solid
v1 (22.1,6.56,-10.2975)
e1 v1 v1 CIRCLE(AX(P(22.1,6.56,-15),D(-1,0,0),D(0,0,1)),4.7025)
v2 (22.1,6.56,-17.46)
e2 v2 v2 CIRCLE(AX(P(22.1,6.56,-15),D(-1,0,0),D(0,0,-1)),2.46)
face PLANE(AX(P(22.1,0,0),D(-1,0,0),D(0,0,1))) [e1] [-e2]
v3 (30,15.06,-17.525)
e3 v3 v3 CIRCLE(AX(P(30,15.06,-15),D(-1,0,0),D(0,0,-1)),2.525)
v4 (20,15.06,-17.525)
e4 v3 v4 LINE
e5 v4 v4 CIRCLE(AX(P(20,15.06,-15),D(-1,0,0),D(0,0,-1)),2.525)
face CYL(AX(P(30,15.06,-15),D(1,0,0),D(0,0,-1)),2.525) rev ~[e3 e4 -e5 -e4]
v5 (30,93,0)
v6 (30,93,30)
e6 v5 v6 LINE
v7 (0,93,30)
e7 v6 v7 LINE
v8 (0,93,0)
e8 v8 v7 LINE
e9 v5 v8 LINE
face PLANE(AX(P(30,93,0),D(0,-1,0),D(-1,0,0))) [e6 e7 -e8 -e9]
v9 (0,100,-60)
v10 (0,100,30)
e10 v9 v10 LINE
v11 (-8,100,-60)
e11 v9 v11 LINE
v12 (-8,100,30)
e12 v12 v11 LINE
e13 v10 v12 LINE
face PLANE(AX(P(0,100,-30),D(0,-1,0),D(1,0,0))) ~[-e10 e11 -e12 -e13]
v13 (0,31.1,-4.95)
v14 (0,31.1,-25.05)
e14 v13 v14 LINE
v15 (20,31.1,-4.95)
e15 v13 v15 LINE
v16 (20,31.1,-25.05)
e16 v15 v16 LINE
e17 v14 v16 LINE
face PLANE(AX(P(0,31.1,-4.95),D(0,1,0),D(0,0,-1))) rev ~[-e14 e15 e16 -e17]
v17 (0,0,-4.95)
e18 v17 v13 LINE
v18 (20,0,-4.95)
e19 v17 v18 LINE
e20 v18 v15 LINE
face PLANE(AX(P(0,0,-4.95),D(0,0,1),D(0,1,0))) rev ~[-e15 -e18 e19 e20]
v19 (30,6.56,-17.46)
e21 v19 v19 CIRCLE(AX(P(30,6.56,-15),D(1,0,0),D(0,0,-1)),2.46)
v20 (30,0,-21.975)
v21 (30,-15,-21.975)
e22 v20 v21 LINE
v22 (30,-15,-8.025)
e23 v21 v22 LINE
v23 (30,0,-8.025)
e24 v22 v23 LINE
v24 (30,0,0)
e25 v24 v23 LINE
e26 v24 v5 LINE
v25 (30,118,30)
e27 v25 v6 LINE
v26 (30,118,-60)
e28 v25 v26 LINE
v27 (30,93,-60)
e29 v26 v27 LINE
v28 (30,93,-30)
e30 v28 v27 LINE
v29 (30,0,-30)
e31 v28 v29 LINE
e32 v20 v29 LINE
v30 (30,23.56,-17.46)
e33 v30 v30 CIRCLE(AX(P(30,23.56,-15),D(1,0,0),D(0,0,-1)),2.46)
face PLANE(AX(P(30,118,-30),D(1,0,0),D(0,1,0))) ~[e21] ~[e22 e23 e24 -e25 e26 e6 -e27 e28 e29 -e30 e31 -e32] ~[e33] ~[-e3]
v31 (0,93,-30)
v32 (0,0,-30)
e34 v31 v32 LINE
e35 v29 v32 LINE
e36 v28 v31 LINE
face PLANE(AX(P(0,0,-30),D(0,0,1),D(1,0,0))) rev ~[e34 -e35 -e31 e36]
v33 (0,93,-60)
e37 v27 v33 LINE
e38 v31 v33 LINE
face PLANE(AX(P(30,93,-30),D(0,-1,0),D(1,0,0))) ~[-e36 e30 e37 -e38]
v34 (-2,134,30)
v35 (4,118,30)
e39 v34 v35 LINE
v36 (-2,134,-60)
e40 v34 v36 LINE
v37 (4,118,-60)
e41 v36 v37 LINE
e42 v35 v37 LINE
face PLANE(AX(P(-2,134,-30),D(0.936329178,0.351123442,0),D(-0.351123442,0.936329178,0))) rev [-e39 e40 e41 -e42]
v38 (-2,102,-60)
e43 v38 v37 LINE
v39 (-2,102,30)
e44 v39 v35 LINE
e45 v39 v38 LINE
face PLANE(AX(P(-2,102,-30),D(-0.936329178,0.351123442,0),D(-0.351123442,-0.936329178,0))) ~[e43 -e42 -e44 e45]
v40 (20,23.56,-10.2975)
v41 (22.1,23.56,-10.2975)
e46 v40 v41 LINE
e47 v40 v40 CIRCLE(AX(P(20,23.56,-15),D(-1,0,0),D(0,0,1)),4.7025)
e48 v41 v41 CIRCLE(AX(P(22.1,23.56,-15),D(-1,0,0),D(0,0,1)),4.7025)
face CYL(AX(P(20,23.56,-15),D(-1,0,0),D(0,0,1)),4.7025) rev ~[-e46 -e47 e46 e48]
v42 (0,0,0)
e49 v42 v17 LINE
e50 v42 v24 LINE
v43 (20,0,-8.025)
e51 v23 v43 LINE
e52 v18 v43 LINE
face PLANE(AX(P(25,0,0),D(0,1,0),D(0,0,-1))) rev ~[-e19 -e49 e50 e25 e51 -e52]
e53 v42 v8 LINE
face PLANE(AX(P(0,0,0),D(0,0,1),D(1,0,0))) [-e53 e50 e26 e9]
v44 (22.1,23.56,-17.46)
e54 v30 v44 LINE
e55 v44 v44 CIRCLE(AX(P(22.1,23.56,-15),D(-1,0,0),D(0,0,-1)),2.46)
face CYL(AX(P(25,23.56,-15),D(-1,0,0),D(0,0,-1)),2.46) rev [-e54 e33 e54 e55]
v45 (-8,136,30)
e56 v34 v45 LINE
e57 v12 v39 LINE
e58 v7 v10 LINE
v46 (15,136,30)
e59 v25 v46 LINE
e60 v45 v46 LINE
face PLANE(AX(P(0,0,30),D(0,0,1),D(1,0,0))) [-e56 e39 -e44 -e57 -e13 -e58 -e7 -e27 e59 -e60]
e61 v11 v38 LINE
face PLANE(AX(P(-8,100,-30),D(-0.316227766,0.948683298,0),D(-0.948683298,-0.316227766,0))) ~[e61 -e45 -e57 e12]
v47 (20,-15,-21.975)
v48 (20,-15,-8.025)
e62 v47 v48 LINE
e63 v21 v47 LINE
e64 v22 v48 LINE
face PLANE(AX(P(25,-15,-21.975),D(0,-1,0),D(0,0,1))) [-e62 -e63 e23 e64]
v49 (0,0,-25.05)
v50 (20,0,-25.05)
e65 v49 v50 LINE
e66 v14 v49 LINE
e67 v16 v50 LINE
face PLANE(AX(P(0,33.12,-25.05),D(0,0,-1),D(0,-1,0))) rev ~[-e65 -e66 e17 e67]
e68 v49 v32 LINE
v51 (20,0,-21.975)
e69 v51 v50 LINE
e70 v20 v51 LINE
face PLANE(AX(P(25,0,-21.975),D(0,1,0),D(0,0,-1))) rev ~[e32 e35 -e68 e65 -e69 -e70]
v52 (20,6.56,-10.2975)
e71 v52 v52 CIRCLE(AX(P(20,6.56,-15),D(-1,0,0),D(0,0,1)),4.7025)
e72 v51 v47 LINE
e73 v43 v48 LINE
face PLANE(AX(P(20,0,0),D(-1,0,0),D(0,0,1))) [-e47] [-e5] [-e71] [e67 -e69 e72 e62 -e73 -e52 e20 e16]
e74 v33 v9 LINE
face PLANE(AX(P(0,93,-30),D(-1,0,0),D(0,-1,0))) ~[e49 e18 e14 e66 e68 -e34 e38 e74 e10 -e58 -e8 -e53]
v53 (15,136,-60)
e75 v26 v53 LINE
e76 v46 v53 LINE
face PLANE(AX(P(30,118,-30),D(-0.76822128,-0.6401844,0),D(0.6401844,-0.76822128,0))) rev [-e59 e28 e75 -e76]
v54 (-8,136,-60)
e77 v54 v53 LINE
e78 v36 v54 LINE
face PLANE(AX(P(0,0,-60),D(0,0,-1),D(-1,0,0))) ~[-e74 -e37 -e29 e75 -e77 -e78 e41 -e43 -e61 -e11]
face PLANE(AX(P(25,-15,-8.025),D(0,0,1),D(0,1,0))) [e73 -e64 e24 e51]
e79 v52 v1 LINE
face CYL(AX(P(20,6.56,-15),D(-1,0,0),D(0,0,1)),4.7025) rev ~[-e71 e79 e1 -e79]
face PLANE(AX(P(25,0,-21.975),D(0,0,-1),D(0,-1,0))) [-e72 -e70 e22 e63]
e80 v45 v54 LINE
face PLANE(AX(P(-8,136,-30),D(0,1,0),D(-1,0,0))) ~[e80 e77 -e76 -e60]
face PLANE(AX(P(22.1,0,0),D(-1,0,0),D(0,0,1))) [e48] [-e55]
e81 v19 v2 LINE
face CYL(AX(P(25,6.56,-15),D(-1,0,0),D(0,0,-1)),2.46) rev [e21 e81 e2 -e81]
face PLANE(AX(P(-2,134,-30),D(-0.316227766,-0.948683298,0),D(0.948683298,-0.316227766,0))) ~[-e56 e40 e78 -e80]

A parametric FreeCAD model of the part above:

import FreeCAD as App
import Part
import Sketcher

doc = App.newDocument("Part")
body = doc.addObject("PartDesign::Body", "Body")

sketch1 = doc.addObject("Sketcher::SketchObject", "Sketch")
body.addObject(sketch1)
sketch1.AttachmentSupport = (doc.XY_Plane, [""])
sketch1.MapMode = "FlatFace"
sketch1.addGeometry([
    Part.LineSegment(App.Vector(0, 40, 0), App.Vector(0, 0, 0)),
    Part.LineSegment(App.Vector(0, 0, 0), App.Vector(25, 0, 0)),
    Part.LineSegment(App.Vector(25, 0, 0), App.Vector(25, 40, 0)),
    Part.LineSegment(App.Vector(25, 40, 0), App.Vector(0, 40, 0)),
], False)
sketch1.addConstraint([
    Sketcher.Constraint("Coincident", 0, 2, 1, 1),
    Sketcher.Constraint("Coincident", 1, 2, 2, 1),
    Sketcher.Constraint("Coincident", 2, 2, 3, 1),
    Sketcher.Constraint("Coincident", 3, 2, 0, 1),
    Sketcher.Constraint("Vertical", 0),
    Sketcher.Constraint("Horizontal", 1),
    Sketcher.Constraint("Vertical", 2),
    Sketcher.Constraint("Horizontal", 3),
    Sketcher.Constraint("Coincident", 0, 2, -1, 1),
    Sketcher.Constraint("DistanceX", 1, 1, 1, 2, 25.0),
    Sketcher.Constraint("DistanceY", 0, 2, 0, 1, 40.0),
])
pad1 = doc.addObject("PartDesign::Pad", "Pad")
body.addObject(pad1)
pad1.Profile = sketch1
pad1.Length = 30
pad1.Reversed = True

sketch2 = doc.addObject("Sketcher::SketchObject", "Sketch001")
body.addObject(sketch2)
sketch2.AttachmentSupport = (doc.YZ_Plane, [""])
sketch2.MapMode = "FlatFace"
sketch2.AttachmentOffset = App.Placement(App.Vector(0, 0, 25), App.Rotation())
sketch2.addGeometry(Part.Circle(App.Vector(6.56, -15, 0), App.Vector(0, 0, 1), 2.46), False)
sketch2.addConstraint([
    Sketcher.Constraint("Diameter", 0, 4.92),
    Sketcher.Constraint("DistanceY", 0, 3, -1, 1, 15.0),
    Sketcher.Constraint("DistanceX", -1, 1, 0, 3, 6.56),
])
pocket1 = doc.addObject("PartDesign::Pocket", "Pocket")
body.addObject(pocket1)
pocket1.Profile = sketch2
pocket1.Length = 30

sketch3 = doc.addObject("Sketcher::SketchObject", "Sketch002")
body.addObject(sketch3)
sketch3.AttachmentSupport = (doc.YZ_Plane, [""])
sketch3.MapMode = "FlatFace"
sketch3.addGeometry([
    Part.LineSegment(App.Vector(0, -25.05, 0), App.Vector(0, -4.95, 0)),
    Part.LineSegment(App.Vector(0, -4.95, 0), App.Vector(33.12, -4.95, 0)),
    Part.LineSegment(App.Vector(33.12, -4.95, 0), App.Vector(33.12, -25.05, 0)),
    Part.LineSegment(App.Vector(33.12, -25.05, 0), App.Vector(0, -25.05, 0)),
], False)
sketch3.addConstraint([
    Sketcher.Constraint("Coincident", 0, 2, 1, 1),
    Sketcher.Constraint("Coincident", 1, 2, 2, 1),
    Sketcher.Constraint("Coincident", 2, 2, 3, 1),
    Sketcher.Constraint("Coincident", 3, 2, 0, 1),
    Sketcher.Constraint("Vertical", 0),
    Sketcher.Constraint("Horizontal", 1),
    Sketcher.Constraint("Vertical", 2),
    Sketcher.Constraint("Horizontal", 3),
    Sketcher.Constraint("PointOnObject", 0, 2, -2),
    Sketcher.Constraint("DistanceY", 0, 1, 0, 2, 20.1),
    Sketcher.Constraint("DistanceX", 1, 1, 1, 2, 33.12),
    Sketcher.Constraint("DistanceY", 0, 2, -1, 1, 4.95),
])
pocket2 = doc.addObject("PartDesign::Pocket", "Pocket001")
body.addObject(pocket2)
pocket2.Profile = sketch3
pocket2.Length = 20
pocket2.Reversed = True

sketch4 = doc.addObject("Sketcher::SketchObject", "Sketch003")
body.addObject(sketch4)
sketch4.AttachmentSupport = (doc.XZ_Plane, [""])
sketch4.MapMode = "FlatFace"
sketch4.addGeometry([
    Part.LineSegment(App.Vector(25, -8.025, 0), App.Vector(20, -8.025, 0)),
    Part.LineSegment(App.Vector(20, -8.025, 0), App.Vector(20, -21.975, 0)),
    Part.LineSegment(App.Vector(20, -21.975, 0), App.Vector(25, -21.975, 0)),
    Part.LineSegment(App.Vector(25, -21.975, 0), App.Vector(25, -8.025, 0)),
], False)
sketch4.addConstraint([
    Sketcher.Constraint("Coincident", 0, 2, 1, 1),
    Sketcher.Constraint("Coincident", 1, 2, 2, 1),
    Sketcher.Constraint("Coincident", 2, 2, 3, 1),
    Sketcher.Constraint("Coincident", 3, 2, 0, 1),
    Sketcher.Constraint("Horizontal", 0),
    Sketcher.Constraint("Vertical", 1),
    Sketcher.Constraint("Horizontal", 2),
    Sketcher.Constraint("Vertical", 3),
    Sketcher.Constraint("DistanceY", 1, 2, 1, 1, 13.95),
    Sketcher.Constraint("DistanceX", 0, 2, 0, 1, 5.0),
    Sketcher.Constraint("DistanceX", -1, 1, 0, 2, 20.0),
    Sketcher.Constraint("DistanceY", 0, 2, -1, 1, 8.025),
])
pad2 = doc.addObject("PartDesign::Pad", "Pad001")
body.addObject(pad2)
pad2.Profile = sketch4
pad2.Length = 15

sketch5 = doc.addObject("Sketcher::SketchObject", "Sketch004")
body.addObject(sketch5)
sketch5.AttachmentSupport = (doc.YZ_Plane, [""])
sketch5.MapMode = "FlatFace"
sketch5.AttachmentOffset = App.Placement(App.Vector(0, 0, 20), App.Rotation())
sketch5.addGeometry([
    Part.Circle(App.Vector(6.56, -15, 0), App.Vector(0, 0, 1), 4.7025),
    Part.Circle(App.Vector(6.56, -15, 0), App.Vector(0, 0, 1), 2.46),
], False)
sketch5.addConstraint([
    Sketcher.Constraint("Coincident", 1, 3, 0, 3),
    Sketcher.Constraint("Diameter", 0, 9.405),
    Sketcher.Constraint("Diameter", 1, 4.92),
    Sketcher.Constraint("DistanceY", 0, 3, -1, 1, 15.0),
    Sketcher.Constraint("DistanceX", -1, 1, 0, 3, 6.56),
])
pocket3 = doc.addObject("PartDesign::Pocket", "Pocket002")
body.addObject(pocket3)
pocket3.Profile = sketch5
pocket3.Length = 2.1
pocket3.Reversed = True

sketch6 = doc.addObject("Sketcher::SketchObject", "Sketch005")
body.addObject(sketch6)
sketch6.AttachmentSupport = (doc.YZ_Plane, [""])
sketch6.MapMode = "FlatFace"
sketch6.AttachmentOffset = App.Placement(App.Vector(0, 0, 25), App.Rotation())
sketch6.addGeometry(Part.Circle(App.Vector(23.56, -15, 0), App.Vector(0, 0, 1), 2.46), False)
sketch6.addConstraint([
    Sketcher.Constraint("Diameter", 0, 4.92),
    Sketcher.Constraint("DistanceY", 0, 3, -1, 1, 15.0),
    Sketcher.Constraint("DistanceX", -1, 1, 0, 3, 23.56),
])
pocket4 = doc.addObject("PartDesign::Pocket", "Pocket003")
body.addObject(pocket4)
pocket4.Profile = sketch6
pocket4.Length = 10

sketch7 = doc.addObject("Sketcher::SketchObject", "Sketch006")
body.addObject(sketch7)
sketch7.AttachmentSupport = (doc.YZ_Plane, [""])
sketch7.MapMode = "FlatFace"
sketch7.AttachmentOffset = App.Placement(App.Vector(0, 0, 20), App.Rotation())
sketch7.addGeometry([
    Part.Circle(App.Vector(23.56, -15, 0), App.Vector(0, 0, 1), 4.7025),
    Part.Circle(App.Vector(23.56, -15, 0), App.Vector(0, 0, 1), 2.46),
], False)
sketch7.addConstraint([
    Sketcher.Constraint("Coincident", 1, 3, 0, 3),
    Sketcher.Constraint("Diameter", 0, 9.405),
    Sketcher.Constraint("Diameter", 1, 4.92),
    Sketcher.Constraint("DistanceY", 0, 3, -1, 1, 15.0),
    Sketcher.Constraint("DistanceX", -1, 1, 0, 3, 23.56),
])
pocket5 = doc.addObject("PartDesign::Pocket", "Pocket004")
body.addObject(pocket5)
pocket5.Profile = sketch7
pocket5.Length = 2.1
pocket5.Reversed = True

sketch8 = doc.addObject("Sketcher::SketchObject", "Sketch007")
body.addObject(sketch8)
sketch8.AttachmentSupport = (doc.YZ_Plane, [""])
sketch8.MapMode = "FlatFace"
sketch8.AttachmentOffset = App.Placement(App.Vector(0, 0, 25), App.Rotation())
sketch8.addGeometry([
    Part.LineSegment(App.Vector(0, -30, 0), App.Vector(40, -30, 0)),
    Part.LineSegment(App.Vector(40, -30, 0), App.Vector(40, 0, 0)),
    Part.LineSegment(App.Vector(40, 0, 0), App.Vector(0, 0, 0)),
    Part.LineSegment(App.Vector(0, 0, 0), App.Vector(0, -8.025, 0)),
    Part.LineSegment(App.Vector(0, -8.025, 0), App.Vector(-15, -8.025, 0)),
    Part.LineSegment(App.Vector(-15, -8.025, 0), App.Vector(-15, -21.975, 0)),
    Part.LineSegment(App.Vector(-15, -21.975, 0), App.Vector(0, -21.975, 0)),
    Part.LineSegment(App.Vector(0, -21.975, 0), App.Vector(0, -30, 0)),
    Part.Circle(App.Vector(6.56, -15, 0), App.Vector(0, 0, 1), 2.46),
    Part.Circle(App.Vector(23.56, -15, 0), App.Vector(0, 0, 1), 2.46),
], False)
sketch8.addConstraint([
    Sketcher.Constraint("Coincident", 0, 2, 1, 1),
    Sketcher.Constraint("Coincident", 1, 2, 2, 1),
    Sketcher.Constraint("Coincident", 2, 2, 3, 1),
    Sketcher.Constraint("Coincident", 3, 2, 4, 1),
    Sketcher.Constraint("Coincident", 4, 2, 5, 1),
    Sketcher.Constraint("Coincident", 5, 2, 6, 1),
    Sketcher.Constraint("Coincident", 6, 2, 7, 1),
    Sketcher.Constraint("Coincident", 7, 2, 0, 1),
    Sketcher.Constraint("Horizontal", 0),
    Sketcher.Constraint("Vertical", 1),
    Sketcher.Constraint("Horizontal", 2),
    Sketcher.Constraint("Vertical", 3),
    Sketcher.Constraint("Horizontal", 4),
    Sketcher.Constraint("Vertical", 5),
    Sketcher.Constraint("Horizontal", 6),
    Sketcher.Constraint("Vertical", 7),
    Sketcher.Constraint("Coincident", 2, 2, -1, 1),
    Sketcher.Constraint("Equal", 8, 9),
    Sketcher.Constraint("PointOnObject", 6, 2, -2),
    Sketcher.Constraint("Horizontal", 8, 3, 9, 3),
    Sketcher.Constraint("Equal", 3, 7),
    Sketcher.Constraint("Diameter", 8, 4.92),
    Sketcher.Constraint("DistanceX", 0, 1, 0, 2, 40.0),
    Sketcher.Constraint("DistanceX", 4, 2, 4, 1, 15.0),
    Sketcher.Constraint("DistanceY", 1, 1, 1, 2, 30.0),
    Sketcher.Constraint("DistanceY", 8, 3, -1, 1, 15.0),
    Sketcher.Constraint("DistanceX", 8, 3, 9, 3, 17.0),
    Sketcher.Constraint("DistanceY", 5, 2, 5, 1, 13.95),
    Sketcher.Constraint("DistanceX", -1, 1, 8, 3, 6.56),
])
pad3 = doc.addObject("PartDesign::Pad", "Pad002")
body.addObject(pad3)
pad3.Profile = sketch8
pad3.Length = 5

sketch9 = doc.addObject("Sketcher::SketchObject", "Sketch008")
body.addObject(sketch9)
sketch9.AttachmentSupport = (doc.XZ_Plane, [""])
sketch9.MapMode = "FlatFace"
sketch9.AttachmentOffset = App.Placement(App.Vector(0, 0, -40), App.Rotation())
sketch9.addGeometry([
    Part.LineSegment(App.Vector(30, -30, 0), App.Vector(0, -30, 0)),
    Part.LineSegment(App.Vector(0, -30, 0), App.Vector(0, 0, 0)),
    Part.LineSegment(App.Vector(0, 0, 0), App.Vector(30, 0, 0)),
    Part.LineSegment(App.Vector(30, 0, 0), App.Vector(30, -30, 0)),
], False)
sketch9.addConstraint([
    Sketcher.Constraint("Coincident", 0, 2, 1, 1),
    Sketcher.Constraint("Coincident", 1, 2, 2, 1),
    Sketcher.Constraint("Coincident", 2, 2, 3, 1),
    Sketcher.Constraint("Coincident", 3, 2, 0, 1),
    Sketcher.Constraint("Horizontal", 0),
    Sketcher.Constraint("Vertical", 1),
    Sketcher.Constraint("Horizontal", 2),
    Sketcher.Constraint("Vertical", 3),
    Sketcher.Constraint("Coincident", 1, 2, -1, 1),
    Sketcher.Constraint("Equal", 2, 1),
    Sketcher.Constraint("DistanceX", 0, 2, 0, 1, 30.0),
])
pad4 = doc.addObject("PartDesign::Pad", "Pad003")
body.addObject(pad4)
pad4.Profile = sketch9
pad4.Length = 30
pad4.Reversed = True

sketch10 = doc.addObject("Sketcher::SketchObject", "Sketch009")
body.addObject(sketch10)
sketch10.AttachmentSupport = (doc.YZ_Plane, [""])
sketch10.MapMode = "FlatFace"
sketch10.AttachmentOffset = App.Placement(App.Vector(0, 0, 30), App.Rotation())
sketch10.addGeometry(Part.Circle(App.Vector(15.06, -15, 0), App.Vector(0, 0, 1), 2.525), False)
sketch10.addConstraint([
    Sketcher.Constraint("Diameter", 0, 5.05),
    Sketcher.Constraint("DistanceY", 0, 3, -1, 1, 15.0),
    Sketcher.Constraint("DistanceX", -1, 1, 0, 3, 15.06),
])
pocket6 = doc.addObject("PartDesign::Pocket", "Pocket005")
body.addObject(pocket6)
pocket6.Profile = sketch10
pocket6.Length = 30

sketch11 = doc.addObject("Sketcher::SketchObject", "Sketch010")
body.addObject(sketch11)
sketch11.AttachmentSupport = (doc.XY_Plane, [""])
sketch11.MapMode = "FlatFace"
sketch11.addGeometry([
    Part.LineSegment(App.Vector(0, 70, 0), App.Vector(30, 70, 0)),
    Part.LineSegment(App.Vector(30, 70, 0), App.Vector(30, 118, 0)),
    Part.LineSegment(App.Vector(30, 118, 0), App.Vector(15, 136, 0)),
    Part.LineSegment(App.Vector(15, 136, 0), App.Vector(-8, 136, 0)),
    Part.LineSegment(App.Vector(-8, 136, 0), App.Vector(-2, 134, 0)),
    Part.LineSegment(App.Vector(-2, 134, 0), App.Vector(4, 118, 0)),
    Part.LineSegment(App.Vector(4, 118, 0), App.Vector(-2, 102, 0)),
    Part.LineSegment(App.Vector(-2, 102, 0), App.Vector(-8, 100, 0)),
    Part.LineSegment(App.Vector(-8, 100, 0), App.Vector(0, 100, 0)),
    Part.LineSegment(App.Vector(0, 100, 0), App.Vector(0, 70, 0)),
], False)
sketch11.addConstraint([
    Sketcher.Constraint("Coincident", 0, 2, 1, 1),
    Sketcher.Constraint("Coincident", 1, 2, 2, 1),
    Sketcher.Constraint("Coincident", 2, 2, 3, 1),
    Sketcher.Constraint("Coincident", 3, 2, 4, 1),
    Sketcher.Constraint("Coincident", 4, 2, 5, 1),
    Sketcher.Constraint("Coincident", 5, 2, 6, 1),
    Sketcher.Constraint("Coincident", 6, 2, 7, 1),
    Sketcher.Constraint("Coincident", 7, 2, 8, 1),
    Sketcher.Constraint("Coincident", 8, 2, 9, 1),
    Sketcher.Constraint("Coincident", 9, 2, 0, 1),
    Sketcher.Constraint("Horizontal", 0),
    Sketcher.Constraint("Vertical", 1),
    Sketcher.Constraint("Horizontal", 3),
    Sketcher.Constraint("Horizontal", 8),
    Sketcher.Constraint("Vertical", 9),
    Sketcher.Constraint("PointOnObject", 8, 2, -2),
    Sketcher.Constraint("Horizontal", 1, 2, 5, 2),
    Sketcher.Constraint("Vertical", 4, 2, 6, 2),
    Sketcher.Constraint("Vertical", 3, 2, 7, 2),
    Sketcher.Constraint("Equal", 0, 9),
    Sketcher.Constraint("Equal", 5, 6),
    Sketcher.Constraint("Equal", 4, 7),
    Sketcher.Constraint("DistanceX", 0, 1, 0, 2, 30.0),
    Sketcher.Constraint("DistanceX", 3, 2, 3, 1, 23.0),
    Sketcher.Constraint("DistanceX", 8, 1, 8, 2, 8.0),
    Sketcher.Constraint("DistanceY", 1, 1, 1, 2, 48.0),
    Sketcher.Constraint("DistanceY", -1, 1, 0, 2, 70.0),
    Sketcher.Constraint("DistanceX", 4, 2, -1, 1, 2.0),
    Sketcher.Constraint("DistanceY", -1, 1, 4, 2, 134.0),
    Sketcher.Constraint("DistanceX", -1, 1, 5, 2, 4.0),
])
pad5 = doc.addObject("PartDesign::Pad", "Pad004")
body.addObject(pad5)
pad5.Profile = sketch11
pad5.Length = 30
pad5.Reversed = True

sketch12 = doc.addObject("Sketcher::SketchObject", "Sketch011")
body.addObject(sketch12)
sketch12.AttachmentSupport = (doc.YZ_Plane, [""])
sketch12.MapMode = "FlatFace"
sketch12.addGeometry([
    Part.LineSegment(App.Vector(33.12, -4.95, 0), App.Vector(33.12, -25.05, 0)),
    Part.LineSegment(App.Vector(33.12, -25.05, 0), App.Vector(31.1, -25.05, 0)),
    Part.LineSegment(App.Vector(31.1, -25.05, 0), App.Vector(31.1, -4.95, 0)),
    Part.LineSegment(App.Vector(31.1, -4.95, 0), App.Vector(33.12, -4.95, 0)),
], False)
sketch12.addConstraint([
    Sketcher.Constraint("Coincident", 0, 2, 1, 1),
    Sketcher.Constraint("Coincident", 1, 2, 2, 1),
    Sketcher.Constraint("Coincident", 2, 2, 3, 1),
    Sketcher.Constraint("Coincident", 3, 2, 0, 1),
    Sketcher.Constraint("Vertical", 0),
    Sketcher.Constraint("Horizontal", 1),
    Sketcher.Constraint("Vertical", 2),
    Sketcher.Constraint("Horizontal", 3),
    Sketcher.Constraint("DistanceX", 1, 2, 1, 1, 2.02),
    Sketcher.Constraint("DistanceY", 0, 2, 0, 1, 20.1),
    Sketcher.Constraint("DistanceX", -1, 1, 1, 2, 31.1),
    Sketcher.Constraint("DistanceY", 0, 2, -1, 1, 25.05),
])
pad6 = doc.addObject("PartDesign::Pad", "Pad005")
body.addObject(pad6)
pad6.Profile = sketch12
pad6.Length = 20

sketch13 = doc.addObject("Sketcher::SketchObject", "Sketch012")
body.addObject(sketch13)
sketch13.AttachmentSupport = (doc.XY_Plane, [""])
sketch13.MapMode = "FlatFace"
sketch13.addGeometry([
    Part.LineSegment(App.Vector(-8, 100, 0), App.Vector(0, 100, 0)),
    Part.LineSegment(App.Vector(0, 100, 0), App.Vector(0, 93, 0)),
    Part.LineSegment(App.Vector(0, 93, 0), App.Vector(30, 93, 0)),
    Part.LineSegment(App.Vector(30, 93, 0), App.Vector(30, 118, 0)),
    Part.LineSegment(App.Vector(30, 118, 0), App.Vector(15, 136, 0)),
    Part.LineSegment(App.Vector(15, 136, 0), App.Vector(-8, 136, 0)),
    Part.LineSegment(App.Vector(-8, 136, 0), App.Vector(-2, 134, 0)),
    Part.LineSegment(App.Vector(-2, 134, 0), App.Vector(4, 118, 0)),
    Part.LineSegment(App.Vector(4, 118, 0), App.Vector(-2, 102, 0)),
    Part.LineSegment(App.Vector(-2, 102, 0), App.Vector(-8, 100, 0)),
], False)
sketch13.addConstraint([
    Sketcher.Constraint("Coincident", 0, 2, 1, 1),
    Sketcher.Constraint("Coincident", 1, 2, 2, 1),
    Sketcher.Constraint("Coincident", 2, 2, 3, 1),
    Sketcher.Constraint("Coincident", 3, 2, 4, 1),
    Sketcher.Constraint("Coincident", 4, 2, 5, 1),
    Sketcher.Constraint("Coincident", 5, 2, 6, 1),
    Sketcher.Constraint("Coincident", 6, 2, 7, 1),
    Sketcher.Constraint("Coincident", 7, 2, 8, 1),
    Sketcher.Constraint("Coincident", 8, 2, 9, 1),
    Sketcher.Constraint("Coincident", 9, 2, 0, 1),
    Sketcher.Constraint("Horizontal", 0),
    Sketcher.Constraint("Vertical", 1),
    Sketcher.Constraint("Horizontal", 2),
    Sketcher.Constraint("Vertical", 3),
    Sketcher.Constraint("Horizontal", 5),
    Sketcher.Constraint("PointOnObject", 0, 2, -2),
    Sketcher.Constraint("Horizontal", 3, 2, 7, 2),
    Sketcher.Constraint("Vertical", 6, 2, 8, 2),
    Sketcher.Constraint("Vertical", 5, 2, 9, 2),
    Sketcher.Constraint("Equal", 7, 8),
    Sketcher.Constraint("Equal", 6, 9),
    Sketcher.Constraint("DistanceY", 3, 1, 3, 2, 25.0),
    Sketcher.Constraint("DistanceX", 0, 1, 0, 2, 8.0),
    Sketcher.Constraint("DistanceX", 2, 1, 2, 2, 30.0),
    Sketcher.Constraint("DistanceX", 5, 2, 5, 1, 23.0),
    Sketcher.Constraint("DistanceY", 1, 2, 1, 1, 7.0),
    Sketcher.Constraint("DistanceY", -1, 1, 0, 2, 100.0),
    Sketcher.Constraint("DistanceX", 6, 2, -1, 1, 2.0),
    Sketcher.Constraint("DistanceY", -1, 1, 6, 2, 134.0),
    Sketcher.Constraint("DistanceX", -1, 1, 7, 2, 4.0),
])
pad7 = doc.addObject("PartDesign::Pad", "Pad006")
body.addObject(pad7)
pad7.Profile = sketch13
pad7.Length = 30
doc.recompute()

datumplane = doc.addObject("PartDesign::Plane", "DatumPlane")
body.addObject(datumplane)
datumplane.AttachmentSupport = (doc.XY_Plane, [""])
datumplane.MapMode = "FlatFace"
datumplane.AttachmentOffset = App.Placement(App.Vector(0, 0, -15), App.Rotation())
mirrored = doc.addObject("PartDesign::Mirrored", "Mirrored")
body.addObject(mirrored)
mirrored.Originals = [pad7]
mirrored.MirrorPlane = (datumplane, [""])
body.Tip = mirrored

doc.recompute()
